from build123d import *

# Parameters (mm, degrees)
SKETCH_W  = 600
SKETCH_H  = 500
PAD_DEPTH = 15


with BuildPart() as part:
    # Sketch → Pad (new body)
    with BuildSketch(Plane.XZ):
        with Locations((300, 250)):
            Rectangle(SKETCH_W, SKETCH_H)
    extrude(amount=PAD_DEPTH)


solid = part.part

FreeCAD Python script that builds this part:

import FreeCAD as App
import Part
import Sketcher


def add_polygon(sketch, points):
    """Adds a closed chain of lines whose ends are joined by coincident constraints."""
    first, n = sketch.GeometryCount, len(points)
    for a, b in zip(points, points[1:] + points[:1]):
        sketch.addGeometry(Part.LineSegment(App.Vector(*a, 0), App.Vector(*b, 0)), False)
    for i in range(n):
        sketch.addConstraint(Sketcher.Constraint("Coincident", first + i, 2, first + (i + 1) % n, 1))

doc = App.newDocument("Part")
body = doc.addObject("PartDesign::Body", "Body")

# Sketch on XZ plane
sketch1 = body.newObject("Sketcher::SketchObject", "Sketch")
sketch1.AttachmentSupport = (doc.getObject("XZ_Plane"), [""])
sketch1.MapMode = "FlatFace"
add_polygon(sketch1, [(0, 500), (0, 0), (600, 0), (600, 500)])  # lines 0-3
sketch1.addConstraint([
    Sketcher.Constraint("Vertical", 0),
    Sketcher.Constraint("Horizontal", 1),
    Sketcher.Constraint("Vertical", 2),
    Sketcher.Constraint("Horizontal", 3),
    Sketcher.Constraint("Coincident", 0, 2, -1, 1),
    Sketcher.Constraint("DistanceX", 1, 1, 1, 2, 600.0),
    Sketcher.Constraint("DistanceY", 0, 2, 0, 1, 500.0),
])
pad1 = body.newObject("PartDesign::Pad", "Pad")
pad1.Profile = sketch1
pad1.Length = 15

doc.recompute()
